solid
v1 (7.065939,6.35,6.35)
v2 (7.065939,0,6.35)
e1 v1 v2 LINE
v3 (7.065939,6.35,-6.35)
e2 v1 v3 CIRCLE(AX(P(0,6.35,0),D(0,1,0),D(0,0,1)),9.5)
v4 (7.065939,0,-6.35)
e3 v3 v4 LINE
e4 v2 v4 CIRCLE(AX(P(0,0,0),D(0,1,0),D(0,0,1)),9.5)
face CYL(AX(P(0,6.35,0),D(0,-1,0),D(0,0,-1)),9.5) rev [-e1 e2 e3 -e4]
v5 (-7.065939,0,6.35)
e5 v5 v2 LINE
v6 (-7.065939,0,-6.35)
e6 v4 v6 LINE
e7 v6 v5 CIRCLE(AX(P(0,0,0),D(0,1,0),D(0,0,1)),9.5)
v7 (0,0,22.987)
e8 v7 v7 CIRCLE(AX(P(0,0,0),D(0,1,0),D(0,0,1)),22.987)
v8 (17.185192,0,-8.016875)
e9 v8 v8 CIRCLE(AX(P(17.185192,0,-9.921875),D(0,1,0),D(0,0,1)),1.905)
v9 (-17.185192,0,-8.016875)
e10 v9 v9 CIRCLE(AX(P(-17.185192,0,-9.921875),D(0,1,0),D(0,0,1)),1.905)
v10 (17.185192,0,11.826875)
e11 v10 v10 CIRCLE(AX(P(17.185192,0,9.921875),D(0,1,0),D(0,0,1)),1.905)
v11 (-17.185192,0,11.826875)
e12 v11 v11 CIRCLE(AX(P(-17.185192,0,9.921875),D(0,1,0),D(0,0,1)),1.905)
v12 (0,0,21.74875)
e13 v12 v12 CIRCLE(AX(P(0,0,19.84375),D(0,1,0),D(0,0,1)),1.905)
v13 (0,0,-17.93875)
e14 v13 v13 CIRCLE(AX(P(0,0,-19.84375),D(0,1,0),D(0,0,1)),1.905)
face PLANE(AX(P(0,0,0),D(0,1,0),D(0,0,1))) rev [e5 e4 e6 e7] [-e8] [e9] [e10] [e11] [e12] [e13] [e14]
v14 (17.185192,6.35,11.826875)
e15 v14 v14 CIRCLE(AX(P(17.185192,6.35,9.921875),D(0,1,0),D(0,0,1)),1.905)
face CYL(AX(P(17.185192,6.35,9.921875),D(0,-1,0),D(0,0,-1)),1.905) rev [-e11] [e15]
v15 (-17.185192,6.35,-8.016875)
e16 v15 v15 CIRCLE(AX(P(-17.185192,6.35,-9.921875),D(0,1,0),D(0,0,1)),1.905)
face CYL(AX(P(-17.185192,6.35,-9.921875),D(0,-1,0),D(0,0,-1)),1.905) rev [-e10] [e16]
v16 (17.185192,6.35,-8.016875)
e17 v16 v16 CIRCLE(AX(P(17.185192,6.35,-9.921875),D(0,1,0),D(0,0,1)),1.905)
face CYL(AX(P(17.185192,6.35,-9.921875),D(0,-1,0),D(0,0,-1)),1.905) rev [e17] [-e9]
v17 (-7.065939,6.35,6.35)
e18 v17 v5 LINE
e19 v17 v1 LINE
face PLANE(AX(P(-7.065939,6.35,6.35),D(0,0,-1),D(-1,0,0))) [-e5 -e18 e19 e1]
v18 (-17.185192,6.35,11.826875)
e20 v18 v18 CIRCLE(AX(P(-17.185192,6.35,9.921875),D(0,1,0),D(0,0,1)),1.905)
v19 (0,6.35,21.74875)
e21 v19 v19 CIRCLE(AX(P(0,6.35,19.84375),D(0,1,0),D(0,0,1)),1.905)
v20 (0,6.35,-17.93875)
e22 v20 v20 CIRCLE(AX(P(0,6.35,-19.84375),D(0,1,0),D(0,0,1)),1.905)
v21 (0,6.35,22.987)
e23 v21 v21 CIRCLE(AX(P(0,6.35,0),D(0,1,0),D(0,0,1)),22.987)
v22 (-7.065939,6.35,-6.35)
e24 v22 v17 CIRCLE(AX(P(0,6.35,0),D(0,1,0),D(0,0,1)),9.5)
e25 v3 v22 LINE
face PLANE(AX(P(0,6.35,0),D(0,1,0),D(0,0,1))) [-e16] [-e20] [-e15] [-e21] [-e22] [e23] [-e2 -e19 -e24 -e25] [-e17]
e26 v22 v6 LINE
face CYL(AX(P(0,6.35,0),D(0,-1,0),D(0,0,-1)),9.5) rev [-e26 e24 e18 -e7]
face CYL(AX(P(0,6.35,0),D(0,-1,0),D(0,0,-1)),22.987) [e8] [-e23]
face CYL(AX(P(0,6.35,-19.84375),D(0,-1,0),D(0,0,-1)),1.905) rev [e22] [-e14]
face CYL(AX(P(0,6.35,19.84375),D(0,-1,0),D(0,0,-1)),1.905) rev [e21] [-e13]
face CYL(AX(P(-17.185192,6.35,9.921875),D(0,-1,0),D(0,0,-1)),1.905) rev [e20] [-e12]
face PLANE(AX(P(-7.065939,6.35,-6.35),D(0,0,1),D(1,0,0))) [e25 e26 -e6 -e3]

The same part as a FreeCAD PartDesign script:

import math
import FreeCAD as App
import Part
import Sketcher
Q = App.Units.Quantity

doc = App.newDocument("Part")
params = doc.addObject("Spreadsheet::Sheet", "Params")
for row, (alias, value) in enumerate([
    ("sketch1_diameter", "1.81 in"),
    ("sketch1_diameter2", "0.15 in"),
    ("pad1_length", "0.25 in"),
], start=1):
    params.set(f"A{row}", alias)
    params.set(f"B{row}", "=" + value)
    params.setAlias(f"B{row}", alias)

body = doc.addObject("PartDesign::Body", "Body")

# Sketch on XZ plane
sketch1 = body.newObject("Sketcher::SketchObject", "Sketch")
sketch1.AttachmentSupport = (doc.getObject("XZ_Plane"), [""])
sketch1.MapMode = "FlatFace"
sketch1.addGeometry([
    Part.Circle(App.Vector(0, 0, 0), App.Vector(0, 0, 1), 22.987),  # 0
    Part.Circle(App.Vector(-17.185192, 9.921875, 0), App.Vector(0, 0, 1), 1.905),  # 1
    Part.Circle(App.Vector(0, 19.84375, 0), App.Vector(0, 0, 1), 1.905),  # 2
    Part.Circle(App.Vector(17.185192, 9.921875, 0), App.Vector(0, 0, 1), 1.905),  # 3
    Part.Circle(App.Vector(-17.185192, -9.921875, 0), App.Vector(0, 0, 1), 1.905),  # 4
    Part.LineSegment(App.Vector(7.065939, 6.35, 0), App.Vector(-7.065939, 6.35, 0)),  # 5
    Part.ArcOfCircle(Part.Circle(App.Vector(0, 0, 0), App.Vector(0, 0, 1), 9.5), math.radians(138.054682), math.radians(221.945318)),  # 6
    Part.LineSegment(App.Vector(-7.065939, -6.35, 0), App.Vector(7.065939, -6.35, 0)),  # 7
    Part.ArcOfCircle(Part.Circle(App.Vector(0, 0, 0), App.Vector(0, 0, 1), 9.5), math.radians(-41.945318), math.radians(41.945318)),  # 8
    Part.Circle(App.Vector(17.185192, -9.921875, 0), App.Vector(0, 0, 1), 1.905),  # 9
    Part.Circle(App.Vector(0, -19.84375, 0), App.Vector(0, 0, 1), 1.905),  # 10
], False)
sketch1.addConstraint([
    Sketcher.Constraint("Coincident", 5, 2, 6, 1),
    Sketcher.Constraint("Coincident", 6, 2, 7, 1),
    Sketcher.Constraint("Coincident", 7, 2, 8, 1),
    Sketcher.Constraint("Coincident", 8, 2, 5, 1),
    Sketcher.Constraint("Horizontal", 5),
    Sketcher.Constraint("Horizontal", 7),
    Sketcher.Constraint("Coincident", 0, 3, -1, 1),
    Sketcher.Constraint("Coincident", 6, 3, -1, 1),
    Sketcher.Constraint("Coincident", 8, 3, -1, 1),
    Sketcher.Constraint("Equal", 1, 2),
    Sketcher.Constraint("Equal", 2, 3),
    Sketcher.Constraint("Equal", 3, 4),
    Sketcher.Constraint("Equal", 6, 8),
    Sketcher.Constraint("Equal", 4, 9),
    Sketcher.Constraint("Equal", 9, 10),
    Sketcher.Constraint("Symmetric", 3, 3, 4, 3, -1, 1),
    Sketcher.Constraint("Symmetric", 1, 3, 9, 3, -1, 1),
    Sketcher.Constraint("Symmetric", 2, 3, 10, 3, -1, 1),
    Sketcher.Constraint("Symmetric", 1, 3, 3, 3, -2),
    Sketcher.Constraint("PointOnObject", 2, 3, -2),
    Sketcher.Constraint("Vertical", 5, 2, 6, 2),
    Sketcher.Constraint("Diameter", 0, Q("1.81 in")),
    Sketcher.Constraint("Diameter", 1, Q("0.15 in")),
    Sketcher.Constraint("DistanceY", 6, 2, 5, 2, Q("0.5 in")),
    Sketcher.Constraint("Radius", 6, Q("9.5 mm")),
    Sketcher.Constraint("DistanceY", -1, 1, 1, 3, Q("0.390625 in")),
    Sketcher.Constraint("DistanceY", -1, 1, 2, 3, Q("0.78125 in")),
    Sketcher.Constraint("DistanceX", 1, 3, -1, 1, Q("17.185192 mm")),
])
sketch1.setExpression("Constraints[21]", "Params.sketch1_diameter")
sketch1.setExpression("Constraints[22]", "Params.sketch1_diameter2")
pad1 = body.newObject("PartDesign::Pad", "Pad")
pad1.Profile = sketch1
pad1.setExpression("Length", "Params.pad1_length")
pad1.Reversed = True

doc.recompute()
